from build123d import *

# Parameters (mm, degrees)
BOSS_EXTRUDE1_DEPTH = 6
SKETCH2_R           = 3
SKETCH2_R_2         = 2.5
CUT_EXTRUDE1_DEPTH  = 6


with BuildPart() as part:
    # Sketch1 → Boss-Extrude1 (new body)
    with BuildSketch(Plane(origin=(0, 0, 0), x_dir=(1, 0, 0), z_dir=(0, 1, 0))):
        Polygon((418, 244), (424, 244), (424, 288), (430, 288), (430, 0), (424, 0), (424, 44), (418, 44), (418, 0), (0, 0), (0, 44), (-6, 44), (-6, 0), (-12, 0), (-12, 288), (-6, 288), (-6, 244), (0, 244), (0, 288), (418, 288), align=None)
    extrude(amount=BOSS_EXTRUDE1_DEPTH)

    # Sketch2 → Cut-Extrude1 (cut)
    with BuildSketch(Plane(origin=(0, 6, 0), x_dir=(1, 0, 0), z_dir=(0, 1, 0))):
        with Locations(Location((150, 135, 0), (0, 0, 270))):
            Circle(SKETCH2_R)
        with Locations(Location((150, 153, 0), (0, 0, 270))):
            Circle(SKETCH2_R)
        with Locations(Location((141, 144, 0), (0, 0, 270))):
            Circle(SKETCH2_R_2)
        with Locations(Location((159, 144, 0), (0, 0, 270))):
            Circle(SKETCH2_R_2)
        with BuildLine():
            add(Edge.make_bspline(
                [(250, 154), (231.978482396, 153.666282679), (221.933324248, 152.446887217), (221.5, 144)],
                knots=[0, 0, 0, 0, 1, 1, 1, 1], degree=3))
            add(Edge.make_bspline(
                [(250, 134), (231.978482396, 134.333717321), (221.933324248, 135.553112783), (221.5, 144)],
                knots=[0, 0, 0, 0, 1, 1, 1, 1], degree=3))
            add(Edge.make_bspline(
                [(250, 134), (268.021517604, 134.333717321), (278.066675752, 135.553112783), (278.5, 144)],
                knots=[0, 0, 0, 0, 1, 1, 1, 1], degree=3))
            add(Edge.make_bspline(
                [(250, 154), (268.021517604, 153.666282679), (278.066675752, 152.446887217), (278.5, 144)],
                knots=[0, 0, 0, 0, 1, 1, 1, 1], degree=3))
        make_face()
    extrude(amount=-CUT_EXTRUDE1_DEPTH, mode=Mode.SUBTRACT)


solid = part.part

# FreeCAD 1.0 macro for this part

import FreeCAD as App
import Part
import Sketcher


def add_polygon(sketch, points):
    """Adds a closed chain of lines whose ends are joined by coincident constraints."""
    first, n = sketch.GeometryCount, len(points)
    for a, b in zip(points, points[1:] + points[:1]):
        sketch.addGeometry(Part.LineSegment(App.Vector(*a, 0), App.Vector(*b, 0)), False)
    for i in range(n):
        sketch.addConstraint(Sketcher.Constraint("Coincident", first + i, 2, first + (i + 1) % n, 1))

doc = App.newDocument("Part")
body = doc.addObject("PartDesign::Body", "Body")

# Sketch on XZ plane
sketch1 = body.newObject("Sketcher::SketchObject", "Sketch")
sketch1.AttachmentSupport = (doc.getObject("XZ_Plane"), [""])
sketch1.MapMode = "FlatFace"
add_polygon(sketch1, [(424, -244), (418, -244), (418, -288), (0, -288), (0, -244), (-6, -244), (-6, -288), (-12, -288), (-12, 0), (-6, 0), (-6, -44), (0, -44), (0, 0), (418, 0), (418, -44), (424, -44), (424, 0), (430, 0), (430, -288), (424, -288)])  # lines 0-19
sketch1.addConstraint(Sketcher.Constraint("Horizontal", 0))
sketch1.addConstraint(Sketcher.Constraint("Vertical", 1))
sketch1.addConstraint(Sketcher.Constraint("Horizontal", 2))
sketch1.addConstraint(Sketcher.Constraint("Vertical", 3))
sketch1.addConstraint(Sketcher.Constraint("Horizontal", 4))
sketch1.addConstraint(Sketcher.Constraint("Vertical", 5))
sketch1.addConstraint(Sketcher.Constraint("Horizontal", 6))
sketch1.addConstraint(Sketcher.Constraint("Vertical", 7))
sketch1.addConstraint(Sketcher.Constraint("Horizontal", 8))
sketch1.addConstraint(Sketcher.Constraint("Vertical", 9))
sketch1.addConstraint(Sketcher.Constraint("Horizontal", 10))
sketch1.addConstraint(Sketcher.Constraint("Vertical", 11))
sketch1.addConstraint(Sketcher.Constraint("Horizontal", 12))
sketch1.addConstraint(Sketcher.Constraint("Vertical", 13))
sketch1.addConstraint(Sketcher.Constraint("Horizontal", 14))
sketch1.addConstraint(Sketcher.Constraint("Vertical", 15))
sketch1.addConstraint(Sketcher.Constraint("Horizontal", 16))
sketch1.addConstraint(Sketcher.Constraint("Vertical", 17))
sketch1.addConstraint(Sketcher.Constraint("Horizontal", 18))
sketch1.addConstraint(Sketcher.Constraint("Vertical", 19))
sketch1.addConstraint(Sketcher.Constraint("Coincident", 11, 2, -1, 1))
sketch1.addConstraint(Sketcher.Constraint("PointOnObject", 2, 2, -2))
sketch1.addConstraint(Sketcher.Constraint("PointOnObject", 7, 2, -1))
sketch1.addConstraint(Sketcher.Constraint("PointOnObject", 15, 2, -1))
sketch1.addConstraint(Sketcher.Constraint("Horizontal", 0, 2, 3, 2))
sketch1.addConstraint(Sketcher.Constraint("Horizontal", 2, 2, 5, 2))
sketch1.addConstraint(Sketcher.Constraint("Horizontal", 10, 2, 13, 2))
sketch1.addConstraint(Sketcher.Constraint("Horizontal", 6, 2, 17, 2))
sketch1.addConstraint(Sketcher.Constraint("Vertical", 5, 2, 8, 2))
sketch1.addConstraint(Sketcher.Constraint("Vertical", 1, 2, 12, 2))
sketch1.addConstraint(Sketcher.Constraint("Vertical", 15, 2, 18, 2))
sketch1.addConstraint(Sketcher.Constraint("Equal", 0, 4))
sketch1.addConstraint(Sketcher.Constraint("Equal", 4, 6))
sketch1.addConstraint(Sketcher.Constraint("Equal", 14, 16))
sketch1.addConstraint(Sketcher.Constraint("Equal", 5, 9))
sketch1.addConstraint(Sketcher.Constraint("DistanceX", 0, 2, 0, 1, 6.0))
sketch1.addConstraint(Sketcher.Constraint("DistanceX", 2, 2, 2, 1, 418.0))
sketch1.addConstraint(Sketcher.Constraint("DistanceY", 1, 2, 1, 1, 44.0))
sketch1.addConstraint(Sketcher.Constraint("DistanceY", 7, 1, 7, 2, 288.0))
pad1 = body.newObject("PartDesign::Pad", "Pad")
pad1.Profile = sketch1
pad1.Length = 6
pad1.Reversed = True

# Sketch on XZ plane
sketch2 = body.newObject("Sketcher::SketchObject", "Sketch001")
sketch2.AttachmentSupport = (doc.getObject("XZ_Plane"), [""])
sketch2.MapMode = "FlatFace"
sketch2.AttachmentOffset = App.Placement(App.Vector(0, 0, -6), App.Rotation())
sketch2.addGeometry(Part.Circle(App.Vector(150, -135, 0), App.Vector(0, 0, 1), 3), False)
sketch2.addGeometry(Part.Circle(App.Vector(150, -153, 0), App.Vector(0, 0, 1), 3), False)
sketch2.addGeometry(Part.Circle(App.Vector(141, -144, 0), App.Vector(0, 0, 1), 2.5), False)
sketch2.addGeometry(Part.Circle(App.Vector(159, -144, 0), App.Vector(0, 0, 1), 2.5), False)
sketch2.addGeometry(Part.BSplineCurve([App.Vector(250, -154, 0), App.Vector(231.978482, -153.666283, 0), App.Vector(221.933324, -152.446887, 0), App.Vector(221.5, -144, 0)], [4, 4], [0, 1], False, 3, [1, 1, 1, 1], False), False)
sketch2.addGeometry(Part.BSplineCurve([App.Vector(250, -134, 0), App.Vector(231.978482, -134.333717, 0), App.Vector(221.933324, -135.553113, 0), App.Vector(221.5, -144, 0)], [4, 4], [0, 1], False, 3, [1, 1, 1, 1], False), False)
sketch2.addGeometry(Part.BSplineCurve([App.Vector(250, -134, 0), App.Vector(268.021518, -134.333717, 0), App.Vector(278.066676, -135.553113, 0), App.Vector(278.5, -144, 0)], [4, 4], [0, 1], False, 3, [1, 1, 1, 1], False), False)
sketch2.addGeometry(Part.BSplineCurve([App.Vector(250, -154, 0), App.Vector(268.021518, -153.666283, 0), App.Vector(278.066676, -152.446887, 0), App.Vector(278.5, -144, 0)], [4, 4], [0, 1], False, 3, [1, 1, 1, 1], False), False)
sketch2.addConstraint(Sketcher.Constraint("Block", 4))
sketch2.addConstraint(Sketcher.Constraint("Block", 5))
sketch2.addConstraint(Sketcher.Constraint("Block", 6))
sketch2.addConstraint(Sketcher.Constraint("Block", 7))
sketch2.addConstraint(Sketcher.Constraint("Equal", 0, 1))
sketch2.addConstraint(Sketcher.Constraint("Equal", 2, 3))
sketch2.addConstraint(Sketcher.Constraint("Horizontal", 2, 3, 3, 3))
sketch2.addConstraint(Sketcher.Constraint("Vertical", 0, 3, 1, 3))
sketch2.addConstraint(Sketcher.Constraint("Diameter", 0, 6.0))
sketch2.addConstraint(Sketcher.Constraint("Diameter", 2, 5.0))
sketch2.addConstraint(Sketcher.Constraint("DistanceX", -1, 1, 0, 3, 150.0))
sketch2.addConstraint(Sketcher.Constraint("DistanceY", 0, 3, -1, 1, 135.0))
sketch2.addConstraint(Sketcher.Constraint("DistanceY", 1, 3, -1, 1, 153.0))
sketch2.addConstraint(Sketcher.Constraint("DistanceX", -1, 1, 2, 3, 141.0))
sketch2.addConstraint(Sketcher.Constraint("DistanceY", 2, 3, -1, 1, 144.0))
sketch2.addConstraint(Sketcher.Constraint("DistanceX", -1, 1, 3, 3, 159.0))
pocket1 = body.newObject("PartDesign::Pocket", "Pocket")
pocket1.Profile = sketch2
pocket1.Length = 6
pocket1.Reversed = True

doc.recompute()
